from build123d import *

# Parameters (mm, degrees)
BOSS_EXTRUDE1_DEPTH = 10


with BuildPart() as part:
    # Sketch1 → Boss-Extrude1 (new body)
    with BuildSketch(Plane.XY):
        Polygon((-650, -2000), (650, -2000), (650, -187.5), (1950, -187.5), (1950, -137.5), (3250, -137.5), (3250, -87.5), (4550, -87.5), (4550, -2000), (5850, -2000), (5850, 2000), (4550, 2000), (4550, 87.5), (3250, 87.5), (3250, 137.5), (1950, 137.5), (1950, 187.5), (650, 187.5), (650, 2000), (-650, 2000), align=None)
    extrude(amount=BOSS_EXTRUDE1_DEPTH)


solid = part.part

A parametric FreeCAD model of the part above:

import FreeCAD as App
import Part
import Sketcher

V = App.Vector
Q = App.Units.Quantity

doc = App.newDocument("Part")
body = doc.addObject("PartDesign::Body", "Body")

sketch1 = doc.addObject("Sketcher::SketchObject", "Sketch")
body.addObject(sketch1)
sketch1.AttachmentSupport = (doc.XY_Plane, [""])
sketch1.MapMode = "FlatFace"
sketch1.addGeometry([
    Part.LineSegment(V(-650, -2000, 0), V(650, -2000, 0)),
    Part.LineSegment(V(650, -2000, 0), V(650, -187.5, 0)),
    Part.LineSegment(V(650, -187.5, 0), V(1950, -187.5, 0)),
    Part.LineSegment(V(1950, -187.5, 0), V(1950, -137.5, 0)),
    Part.LineSegment(V(1950, -137.5, 0), V(3250, -137.5, 0)),
    Part.LineSegment(V(3250, -137.5, 0), V(3250, -87.5, 0)),
    Part.LineSegment(V(3250, -87.5, 0), V(4550, -87.5, 0)),
    Part.LineSegment(V(4550, -87.5, 0), V(4550, -2000, 0)),
    Part.LineSegment(V(4550, -2000, 0), V(5850, -2000, 0)),
    Part.LineSegment(V(5850, -2000, 0), V(5850, 2000, 0)),
    Part.LineSegment(V(5850, 2000, 0), V(4550, 2000, 0)),
    Part.LineSegment(V(4550, 2000, 0), V(4550, 87.5, 0)),
    Part.LineSegment(V(4550, 87.5, 0), V(3250, 87.5, 0)),
    Part.LineSegment(V(3250, 87.5, 0), V(3250, 137.5, 0)),
    Part.LineSegment(V(3250, 137.5, 0), V(1950, 137.5, 0)),
    Part.LineSegment(V(1950, 137.5, 0), V(1950, 187.5, 0)),
    Part.LineSegment(V(1950, 187.5, 0), V(650, 187.5, 0)),
    Part.LineSegment(V(650, 187.5, 0), V(650, 2000, 0)),
    Part.LineSegment(V(650, 2000, 0), V(-650, 2000, 0)),
    Part.LineSegment(V(-650, 2000, 0), V(-650, -2000, 0)),
], False)
sketch1.addConstraint([
    Sketcher.Constraint("Coincident", 0, 2, 1, 1),
    Sketcher.Constraint("Coincident", 1, 2, 2, 1),
    Sketcher.Constraint("Coincident", 2, 2, 3, 1),
    Sketcher.Constraint("Coincident", 3, 2, 4, 1),
    Sketcher.Constraint("Coincident", 4, 2, 5, 1),
    Sketcher.Constraint("Coincident", 5, 2, 6, 1),
    Sketcher.Constraint("Coincident", 6, 2, 7, 1),
    Sketcher.Constraint("Coincident", 7, 2, 8, 1),
    Sketcher.Constraint("Coincident", 8, 2, 9, 1),
    Sketcher.Constraint("Coincident", 9, 2, 10, 1),
    Sketcher.Constraint("Coincident", 10, 2, 11, 1),
    Sketcher.Constraint("Coincident", 11, 2, 12, 1),
    Sketcher.Constraint("Coincident", 12, 2, 13, 1),
    Sketcher.Constraint("Coincident", 13, 2, 14, 1),
    Sketcher.Constraint("Coincident", 14, 2, 15, 1),
    Sketcher.Constraint("Coincident", 15, 2, 16, 1),
    Sketcher.Constraint("Coincident", 16, 2, 17, 1),
    Sketcher.Constraint("Coincident", 17, 2, 18, 1),
    Sketcher.Constraint("Coincident", 18, 2, 19, 1),
    Sketcher.Constraint("Coincident", 19, 2, 0, 1),
    Sketcher.Constraint("Horizontal", 0),
    Sketcher.Constraint("Vertical", 1),
    Sketcher.Constraint("Horizontal", 2),
    Sketcher.Constraint("Vertical", 3),
    Sketcher.Constraint("Horizontal", 4),
    Sketcher.Constraint("Vertical", 5),
    Sketcher.Constraint("Horizontal", 6),
    Sketcher.Constraint("Vertical", 7),
    Sketcher.Constraint("Horizontal", 8),
    Sketcher.Constraint("Vertical", 9),
    Sketcher.Constraint("Horizontal", 10),
    Sketcher.Constraint("Vertical", 11),
    Sketcher.Constraint("Horizontal", 12),
    Sketcher.Constraint("Vertical", 13),
    Sketcher.Constraint("Horizontal", 14),
    Sketcher.Constraint("Vertical", 15),
    Sketcher.Constraint("Horizontal", 16),
    Sketcher.Constraint("Vertical", 17),
    Sketcher.Constraint("Horizontal", 18),
    Sketcher.Constraint("Vertical", 19),
    Sketcher.Constraint("Symmetric", 0, 2, 18, 2, -1, 1),
    Sketcher.Constraint("Symmetric", 7, 2, 10, 2, -1),
    Sketcher.Constraint("Symmetric", 5, 2, 12, 2, -1),
    Sketcher.Constraint("Symmetric", 3, 2, 14, 2, -1),
    Sketcher.Constraint("Symmetric", 1, 2, 16, 2, -1),
    Sketcher.Constraint("Horizontal", 0, 2, 7, 2),
    Sketcher.Constraint("Equal", 0, 2),
    Sketcher.Constraint("Equal", 2, 4),
    Sketcher.Constraint("Equal", 4, 6),
    Sketcher.Constraint("Equal", 6, 8),
    Sketcher.Constraint("Equal", 3, 5),
    Sketcher.Constraint("DistanceX", 0, 1, 0, 2, Q("1300 mm")),
    Sketcher.Constraint("DistanceY", 3, 1, 3, 2, Q("50 mm")),
    Sketcher.Constraint("DistanceY", 9, 1, 9, 2, Q("4000 mm")),
    Sketcher.Constraint("DistanceY", 1, 1, 1, 2, Q("1812.5 mm")),
])
pad1 = doc.addObject("PartDesign::Pad", "Pad")
body.addObject(pad1)
pad1.Profile = sketch1
pad1.Length = 10

doc.recompute()
